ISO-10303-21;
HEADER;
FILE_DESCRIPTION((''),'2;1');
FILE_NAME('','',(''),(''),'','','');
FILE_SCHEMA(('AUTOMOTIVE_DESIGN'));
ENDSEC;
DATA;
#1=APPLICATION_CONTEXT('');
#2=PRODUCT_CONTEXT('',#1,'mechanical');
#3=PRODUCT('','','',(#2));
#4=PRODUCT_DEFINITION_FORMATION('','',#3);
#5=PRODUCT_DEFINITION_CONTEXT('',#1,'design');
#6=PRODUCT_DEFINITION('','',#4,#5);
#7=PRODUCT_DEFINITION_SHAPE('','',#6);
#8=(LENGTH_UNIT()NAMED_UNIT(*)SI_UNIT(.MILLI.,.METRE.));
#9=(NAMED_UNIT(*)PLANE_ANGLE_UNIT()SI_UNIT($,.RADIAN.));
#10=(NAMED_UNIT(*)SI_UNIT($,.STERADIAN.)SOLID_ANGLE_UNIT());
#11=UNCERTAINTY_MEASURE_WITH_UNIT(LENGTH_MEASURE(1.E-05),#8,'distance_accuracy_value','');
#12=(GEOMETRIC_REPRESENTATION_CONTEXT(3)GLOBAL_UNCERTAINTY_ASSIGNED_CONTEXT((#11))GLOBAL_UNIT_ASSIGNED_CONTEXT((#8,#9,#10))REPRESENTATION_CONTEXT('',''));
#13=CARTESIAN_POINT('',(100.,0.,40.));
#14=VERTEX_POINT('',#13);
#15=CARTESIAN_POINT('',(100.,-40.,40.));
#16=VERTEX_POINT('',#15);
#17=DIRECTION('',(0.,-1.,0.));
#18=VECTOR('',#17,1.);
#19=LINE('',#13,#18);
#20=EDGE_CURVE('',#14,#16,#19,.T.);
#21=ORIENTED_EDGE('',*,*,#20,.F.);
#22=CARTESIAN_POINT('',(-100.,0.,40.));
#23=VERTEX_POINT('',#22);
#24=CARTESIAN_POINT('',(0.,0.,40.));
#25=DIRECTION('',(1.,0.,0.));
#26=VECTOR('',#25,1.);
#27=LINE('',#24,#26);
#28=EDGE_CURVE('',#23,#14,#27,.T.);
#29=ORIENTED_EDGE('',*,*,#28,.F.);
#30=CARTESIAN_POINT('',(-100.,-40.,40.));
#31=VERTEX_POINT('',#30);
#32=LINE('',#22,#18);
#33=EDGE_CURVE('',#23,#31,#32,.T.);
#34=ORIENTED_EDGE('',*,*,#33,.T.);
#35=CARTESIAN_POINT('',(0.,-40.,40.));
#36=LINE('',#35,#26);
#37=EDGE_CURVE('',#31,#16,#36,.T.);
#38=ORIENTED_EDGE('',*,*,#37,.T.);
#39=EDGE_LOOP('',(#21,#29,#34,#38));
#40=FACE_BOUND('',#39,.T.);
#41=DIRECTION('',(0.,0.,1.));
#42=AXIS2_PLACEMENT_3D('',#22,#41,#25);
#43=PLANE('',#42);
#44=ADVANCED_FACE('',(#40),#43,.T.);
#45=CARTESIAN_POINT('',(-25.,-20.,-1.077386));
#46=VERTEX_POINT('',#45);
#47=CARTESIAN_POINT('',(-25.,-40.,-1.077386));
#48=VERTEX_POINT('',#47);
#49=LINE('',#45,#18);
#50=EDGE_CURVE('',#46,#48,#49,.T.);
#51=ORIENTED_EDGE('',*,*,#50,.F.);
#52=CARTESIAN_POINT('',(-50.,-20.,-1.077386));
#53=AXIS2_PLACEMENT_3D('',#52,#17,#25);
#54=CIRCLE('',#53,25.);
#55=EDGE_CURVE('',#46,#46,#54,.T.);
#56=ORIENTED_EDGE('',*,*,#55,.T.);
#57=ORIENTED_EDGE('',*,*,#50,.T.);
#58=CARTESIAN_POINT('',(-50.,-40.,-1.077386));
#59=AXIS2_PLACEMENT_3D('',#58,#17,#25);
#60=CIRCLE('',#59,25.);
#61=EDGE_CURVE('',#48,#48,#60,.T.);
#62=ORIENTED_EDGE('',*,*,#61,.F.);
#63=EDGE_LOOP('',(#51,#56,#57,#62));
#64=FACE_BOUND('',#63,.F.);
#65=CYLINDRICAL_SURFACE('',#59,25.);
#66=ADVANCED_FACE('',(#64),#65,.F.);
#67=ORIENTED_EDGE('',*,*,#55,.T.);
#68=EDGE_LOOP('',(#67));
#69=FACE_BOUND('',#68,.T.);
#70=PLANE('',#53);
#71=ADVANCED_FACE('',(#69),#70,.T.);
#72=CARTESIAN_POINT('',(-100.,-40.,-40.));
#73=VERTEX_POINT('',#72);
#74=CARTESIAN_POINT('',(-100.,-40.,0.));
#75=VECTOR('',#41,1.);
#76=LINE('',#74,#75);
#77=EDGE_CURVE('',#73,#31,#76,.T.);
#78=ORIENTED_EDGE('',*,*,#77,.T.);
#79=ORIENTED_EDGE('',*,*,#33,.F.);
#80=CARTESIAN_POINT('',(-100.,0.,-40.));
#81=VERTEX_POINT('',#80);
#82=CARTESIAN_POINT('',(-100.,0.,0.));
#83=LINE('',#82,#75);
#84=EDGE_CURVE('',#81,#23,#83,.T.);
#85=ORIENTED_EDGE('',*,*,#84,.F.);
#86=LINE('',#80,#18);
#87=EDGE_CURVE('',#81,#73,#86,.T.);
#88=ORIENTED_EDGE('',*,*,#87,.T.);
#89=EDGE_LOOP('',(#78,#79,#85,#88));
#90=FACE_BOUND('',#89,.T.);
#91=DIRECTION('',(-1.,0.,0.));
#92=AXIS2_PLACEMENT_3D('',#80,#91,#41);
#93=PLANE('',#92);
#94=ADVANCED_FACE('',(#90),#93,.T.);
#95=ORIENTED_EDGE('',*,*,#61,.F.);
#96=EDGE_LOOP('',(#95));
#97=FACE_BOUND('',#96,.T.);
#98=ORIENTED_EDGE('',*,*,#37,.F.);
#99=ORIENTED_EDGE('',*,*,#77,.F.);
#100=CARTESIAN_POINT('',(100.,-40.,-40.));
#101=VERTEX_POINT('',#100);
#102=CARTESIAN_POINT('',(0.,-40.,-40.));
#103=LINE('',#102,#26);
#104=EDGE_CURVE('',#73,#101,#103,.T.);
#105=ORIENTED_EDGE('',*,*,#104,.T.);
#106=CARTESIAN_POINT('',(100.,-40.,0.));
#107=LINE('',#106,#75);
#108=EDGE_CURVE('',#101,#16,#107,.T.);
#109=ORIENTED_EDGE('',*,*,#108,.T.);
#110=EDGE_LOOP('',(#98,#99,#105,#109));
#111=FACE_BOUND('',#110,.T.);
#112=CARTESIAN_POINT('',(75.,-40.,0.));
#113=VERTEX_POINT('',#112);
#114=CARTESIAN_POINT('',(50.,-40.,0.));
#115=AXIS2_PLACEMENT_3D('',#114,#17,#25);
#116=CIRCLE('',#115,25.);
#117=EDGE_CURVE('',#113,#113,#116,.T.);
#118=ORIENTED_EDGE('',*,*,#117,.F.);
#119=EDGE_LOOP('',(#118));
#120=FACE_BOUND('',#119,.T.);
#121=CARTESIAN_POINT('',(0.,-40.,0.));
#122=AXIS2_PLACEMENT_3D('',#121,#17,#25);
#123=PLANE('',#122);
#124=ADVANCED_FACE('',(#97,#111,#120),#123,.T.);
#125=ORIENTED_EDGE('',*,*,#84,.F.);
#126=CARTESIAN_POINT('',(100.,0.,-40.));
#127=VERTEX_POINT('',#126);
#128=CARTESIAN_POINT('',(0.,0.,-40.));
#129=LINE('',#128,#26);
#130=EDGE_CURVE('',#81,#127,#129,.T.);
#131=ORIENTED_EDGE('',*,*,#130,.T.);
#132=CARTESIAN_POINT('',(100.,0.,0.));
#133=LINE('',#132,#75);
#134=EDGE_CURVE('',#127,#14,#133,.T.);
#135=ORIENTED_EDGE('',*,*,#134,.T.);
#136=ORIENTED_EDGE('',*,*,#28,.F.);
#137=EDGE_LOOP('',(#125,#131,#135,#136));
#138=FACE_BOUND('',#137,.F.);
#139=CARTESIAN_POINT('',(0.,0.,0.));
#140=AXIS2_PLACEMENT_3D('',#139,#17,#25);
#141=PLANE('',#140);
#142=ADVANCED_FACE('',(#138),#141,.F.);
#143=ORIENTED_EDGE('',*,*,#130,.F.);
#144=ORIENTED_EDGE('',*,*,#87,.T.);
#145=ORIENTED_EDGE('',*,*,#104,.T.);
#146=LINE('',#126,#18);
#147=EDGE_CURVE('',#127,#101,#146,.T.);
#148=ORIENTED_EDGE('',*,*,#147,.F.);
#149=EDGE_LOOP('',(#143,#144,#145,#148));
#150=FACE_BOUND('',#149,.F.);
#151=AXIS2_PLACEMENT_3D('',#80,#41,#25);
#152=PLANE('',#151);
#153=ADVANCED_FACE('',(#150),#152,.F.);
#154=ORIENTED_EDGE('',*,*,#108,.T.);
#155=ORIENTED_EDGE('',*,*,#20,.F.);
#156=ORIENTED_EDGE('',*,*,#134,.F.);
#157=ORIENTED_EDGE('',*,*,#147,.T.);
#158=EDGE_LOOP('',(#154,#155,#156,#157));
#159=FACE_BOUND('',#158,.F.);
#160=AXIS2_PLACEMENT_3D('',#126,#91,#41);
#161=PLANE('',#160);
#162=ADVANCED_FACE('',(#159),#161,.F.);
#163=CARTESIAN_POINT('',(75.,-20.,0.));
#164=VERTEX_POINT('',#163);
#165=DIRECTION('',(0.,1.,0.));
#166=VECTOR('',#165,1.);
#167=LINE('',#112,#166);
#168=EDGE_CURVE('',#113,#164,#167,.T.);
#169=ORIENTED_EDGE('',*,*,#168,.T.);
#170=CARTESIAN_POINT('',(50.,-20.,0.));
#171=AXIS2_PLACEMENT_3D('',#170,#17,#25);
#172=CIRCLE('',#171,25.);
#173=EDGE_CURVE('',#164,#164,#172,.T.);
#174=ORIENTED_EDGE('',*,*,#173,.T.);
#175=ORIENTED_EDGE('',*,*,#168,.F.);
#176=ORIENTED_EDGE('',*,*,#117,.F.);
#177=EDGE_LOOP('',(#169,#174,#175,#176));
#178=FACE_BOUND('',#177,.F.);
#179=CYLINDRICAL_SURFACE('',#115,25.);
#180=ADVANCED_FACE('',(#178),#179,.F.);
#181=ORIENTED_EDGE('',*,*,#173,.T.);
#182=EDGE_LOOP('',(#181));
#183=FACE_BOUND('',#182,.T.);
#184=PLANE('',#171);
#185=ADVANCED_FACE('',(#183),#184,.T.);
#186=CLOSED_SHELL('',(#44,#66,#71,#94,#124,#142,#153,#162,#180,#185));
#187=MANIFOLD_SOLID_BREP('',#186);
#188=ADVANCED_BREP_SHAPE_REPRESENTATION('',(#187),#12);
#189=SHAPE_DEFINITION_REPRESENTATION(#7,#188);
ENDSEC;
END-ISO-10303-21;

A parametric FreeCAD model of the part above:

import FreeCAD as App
import Part
import Sketcher
Q = App.Units.Quantity


def add_polygon(sketch, points):
    """Adds a closed chain of lines whose ends are joined by coincident constraints."""
    first, n = sketch.GeometryCount, len(points)
    for a, b in zip(points, points[1:] + points[:1]):
        sketch.addGeometry(Part.LineSegment(App.Vector(*a, 0), App.Vector(*b, 0)), False)
    for i in range(n):
        sketch.addConstraint(Sketcher.Constraint("Coincident", first + i, 2, first + (i + 1) % n, 1))

doc = App.newDocument("Part")
body = doc.addObject("PartDesign::Body", "Body")

sketch1 = doc.addObject("Sketcher::SketchObject", "Sketch")
body.addObject(sketch1)
sketch1.AttachmentSupport = (doc.XZ_Plane, [""])
sketch1.MapMode = "FlatFace"
add_polygon(sketch1, [(-100, 40), (-100, -40), (100, -40), (100, 40)])
sketch1.addConstraint(Sketcher.Constraint("Vertical", 0))
sketch1.addConstraint(Sketcher.Constraint("Horizontal", 1))
sketch1.addConstraint(Sketcher.Constraint("Vertical", 2))
sketch1.addConstraint(Sketcher.Constraint("Horizontal", 3))
sketch1.addConstraint(Sketcher.Constraint("Symmetric", 0, 2, 2, 2, -1, 1))
sketch1.addConstraint(Sketcher.Constraint("DistanceX", 1, 1, 1, 2, Q("200 mm")))
sketch1.addConstraint(Sketcher.Constraint("DistanceY", 0, 2, 0, 1, Q("80 mm")))
pad1 = doc.addObject("PartDesign::Pad", "Pad")
body.addObject(pad1)
pad1.Profile = sketch1
pad1.Length = 40

sketch2 = doc.addObject("Sketcher::SketchObject", "Sketch001")
body.addObject(sketch2)
sketch2.AttachmentSupport = (doc.XZ_Plane, [""])
sketch2.MapMode = "FlatFace"
sketch2.AttachmentOffset = App.Placement(App.Vector(0, 0, 40), App.Rotation())
sketch2.addGeometry(Part.Circle(App.Vector(50, 0, 0), App.Vector(0, 0, 1), 25), False)
sketch2.addGeometry(Part.Circle(App.Vector(-50, -1, 0), App.Vector(0, 0, 1), 25), False)
sketch2.addConstraint(Sketcher.Constraint("Equal", 0, 1))
sketch2.addConstraint(Sketcher.Constraint("PointOnObject", 0, 3, -1))
sketch2.addConstraint(Sketcher.Constraint("Diameter", 0, Q("50 mm")))
sketch2.addConstraint(Sketcher.Constraint("DistanceX", -1, 1, 0, 3, Q("50 mm")))
sketch2.addConstraint(Sketcher.Constraint("DistanceX", 1, 3, -1, 1, Q("50 mm")))
sketch2.addConstraint(Sketcher.Constraint("DistanceY", 1, 3, -1, 1, Q("1.077386 mm")))
pocket1 = doc.addObject("PartDesign::Pocket", "Pocket")
body.addObject(pocket1)
pocket1.Profile = sketch2
pocket1.Length = 40
pocket1.Midplane = True

doc.recompute()
